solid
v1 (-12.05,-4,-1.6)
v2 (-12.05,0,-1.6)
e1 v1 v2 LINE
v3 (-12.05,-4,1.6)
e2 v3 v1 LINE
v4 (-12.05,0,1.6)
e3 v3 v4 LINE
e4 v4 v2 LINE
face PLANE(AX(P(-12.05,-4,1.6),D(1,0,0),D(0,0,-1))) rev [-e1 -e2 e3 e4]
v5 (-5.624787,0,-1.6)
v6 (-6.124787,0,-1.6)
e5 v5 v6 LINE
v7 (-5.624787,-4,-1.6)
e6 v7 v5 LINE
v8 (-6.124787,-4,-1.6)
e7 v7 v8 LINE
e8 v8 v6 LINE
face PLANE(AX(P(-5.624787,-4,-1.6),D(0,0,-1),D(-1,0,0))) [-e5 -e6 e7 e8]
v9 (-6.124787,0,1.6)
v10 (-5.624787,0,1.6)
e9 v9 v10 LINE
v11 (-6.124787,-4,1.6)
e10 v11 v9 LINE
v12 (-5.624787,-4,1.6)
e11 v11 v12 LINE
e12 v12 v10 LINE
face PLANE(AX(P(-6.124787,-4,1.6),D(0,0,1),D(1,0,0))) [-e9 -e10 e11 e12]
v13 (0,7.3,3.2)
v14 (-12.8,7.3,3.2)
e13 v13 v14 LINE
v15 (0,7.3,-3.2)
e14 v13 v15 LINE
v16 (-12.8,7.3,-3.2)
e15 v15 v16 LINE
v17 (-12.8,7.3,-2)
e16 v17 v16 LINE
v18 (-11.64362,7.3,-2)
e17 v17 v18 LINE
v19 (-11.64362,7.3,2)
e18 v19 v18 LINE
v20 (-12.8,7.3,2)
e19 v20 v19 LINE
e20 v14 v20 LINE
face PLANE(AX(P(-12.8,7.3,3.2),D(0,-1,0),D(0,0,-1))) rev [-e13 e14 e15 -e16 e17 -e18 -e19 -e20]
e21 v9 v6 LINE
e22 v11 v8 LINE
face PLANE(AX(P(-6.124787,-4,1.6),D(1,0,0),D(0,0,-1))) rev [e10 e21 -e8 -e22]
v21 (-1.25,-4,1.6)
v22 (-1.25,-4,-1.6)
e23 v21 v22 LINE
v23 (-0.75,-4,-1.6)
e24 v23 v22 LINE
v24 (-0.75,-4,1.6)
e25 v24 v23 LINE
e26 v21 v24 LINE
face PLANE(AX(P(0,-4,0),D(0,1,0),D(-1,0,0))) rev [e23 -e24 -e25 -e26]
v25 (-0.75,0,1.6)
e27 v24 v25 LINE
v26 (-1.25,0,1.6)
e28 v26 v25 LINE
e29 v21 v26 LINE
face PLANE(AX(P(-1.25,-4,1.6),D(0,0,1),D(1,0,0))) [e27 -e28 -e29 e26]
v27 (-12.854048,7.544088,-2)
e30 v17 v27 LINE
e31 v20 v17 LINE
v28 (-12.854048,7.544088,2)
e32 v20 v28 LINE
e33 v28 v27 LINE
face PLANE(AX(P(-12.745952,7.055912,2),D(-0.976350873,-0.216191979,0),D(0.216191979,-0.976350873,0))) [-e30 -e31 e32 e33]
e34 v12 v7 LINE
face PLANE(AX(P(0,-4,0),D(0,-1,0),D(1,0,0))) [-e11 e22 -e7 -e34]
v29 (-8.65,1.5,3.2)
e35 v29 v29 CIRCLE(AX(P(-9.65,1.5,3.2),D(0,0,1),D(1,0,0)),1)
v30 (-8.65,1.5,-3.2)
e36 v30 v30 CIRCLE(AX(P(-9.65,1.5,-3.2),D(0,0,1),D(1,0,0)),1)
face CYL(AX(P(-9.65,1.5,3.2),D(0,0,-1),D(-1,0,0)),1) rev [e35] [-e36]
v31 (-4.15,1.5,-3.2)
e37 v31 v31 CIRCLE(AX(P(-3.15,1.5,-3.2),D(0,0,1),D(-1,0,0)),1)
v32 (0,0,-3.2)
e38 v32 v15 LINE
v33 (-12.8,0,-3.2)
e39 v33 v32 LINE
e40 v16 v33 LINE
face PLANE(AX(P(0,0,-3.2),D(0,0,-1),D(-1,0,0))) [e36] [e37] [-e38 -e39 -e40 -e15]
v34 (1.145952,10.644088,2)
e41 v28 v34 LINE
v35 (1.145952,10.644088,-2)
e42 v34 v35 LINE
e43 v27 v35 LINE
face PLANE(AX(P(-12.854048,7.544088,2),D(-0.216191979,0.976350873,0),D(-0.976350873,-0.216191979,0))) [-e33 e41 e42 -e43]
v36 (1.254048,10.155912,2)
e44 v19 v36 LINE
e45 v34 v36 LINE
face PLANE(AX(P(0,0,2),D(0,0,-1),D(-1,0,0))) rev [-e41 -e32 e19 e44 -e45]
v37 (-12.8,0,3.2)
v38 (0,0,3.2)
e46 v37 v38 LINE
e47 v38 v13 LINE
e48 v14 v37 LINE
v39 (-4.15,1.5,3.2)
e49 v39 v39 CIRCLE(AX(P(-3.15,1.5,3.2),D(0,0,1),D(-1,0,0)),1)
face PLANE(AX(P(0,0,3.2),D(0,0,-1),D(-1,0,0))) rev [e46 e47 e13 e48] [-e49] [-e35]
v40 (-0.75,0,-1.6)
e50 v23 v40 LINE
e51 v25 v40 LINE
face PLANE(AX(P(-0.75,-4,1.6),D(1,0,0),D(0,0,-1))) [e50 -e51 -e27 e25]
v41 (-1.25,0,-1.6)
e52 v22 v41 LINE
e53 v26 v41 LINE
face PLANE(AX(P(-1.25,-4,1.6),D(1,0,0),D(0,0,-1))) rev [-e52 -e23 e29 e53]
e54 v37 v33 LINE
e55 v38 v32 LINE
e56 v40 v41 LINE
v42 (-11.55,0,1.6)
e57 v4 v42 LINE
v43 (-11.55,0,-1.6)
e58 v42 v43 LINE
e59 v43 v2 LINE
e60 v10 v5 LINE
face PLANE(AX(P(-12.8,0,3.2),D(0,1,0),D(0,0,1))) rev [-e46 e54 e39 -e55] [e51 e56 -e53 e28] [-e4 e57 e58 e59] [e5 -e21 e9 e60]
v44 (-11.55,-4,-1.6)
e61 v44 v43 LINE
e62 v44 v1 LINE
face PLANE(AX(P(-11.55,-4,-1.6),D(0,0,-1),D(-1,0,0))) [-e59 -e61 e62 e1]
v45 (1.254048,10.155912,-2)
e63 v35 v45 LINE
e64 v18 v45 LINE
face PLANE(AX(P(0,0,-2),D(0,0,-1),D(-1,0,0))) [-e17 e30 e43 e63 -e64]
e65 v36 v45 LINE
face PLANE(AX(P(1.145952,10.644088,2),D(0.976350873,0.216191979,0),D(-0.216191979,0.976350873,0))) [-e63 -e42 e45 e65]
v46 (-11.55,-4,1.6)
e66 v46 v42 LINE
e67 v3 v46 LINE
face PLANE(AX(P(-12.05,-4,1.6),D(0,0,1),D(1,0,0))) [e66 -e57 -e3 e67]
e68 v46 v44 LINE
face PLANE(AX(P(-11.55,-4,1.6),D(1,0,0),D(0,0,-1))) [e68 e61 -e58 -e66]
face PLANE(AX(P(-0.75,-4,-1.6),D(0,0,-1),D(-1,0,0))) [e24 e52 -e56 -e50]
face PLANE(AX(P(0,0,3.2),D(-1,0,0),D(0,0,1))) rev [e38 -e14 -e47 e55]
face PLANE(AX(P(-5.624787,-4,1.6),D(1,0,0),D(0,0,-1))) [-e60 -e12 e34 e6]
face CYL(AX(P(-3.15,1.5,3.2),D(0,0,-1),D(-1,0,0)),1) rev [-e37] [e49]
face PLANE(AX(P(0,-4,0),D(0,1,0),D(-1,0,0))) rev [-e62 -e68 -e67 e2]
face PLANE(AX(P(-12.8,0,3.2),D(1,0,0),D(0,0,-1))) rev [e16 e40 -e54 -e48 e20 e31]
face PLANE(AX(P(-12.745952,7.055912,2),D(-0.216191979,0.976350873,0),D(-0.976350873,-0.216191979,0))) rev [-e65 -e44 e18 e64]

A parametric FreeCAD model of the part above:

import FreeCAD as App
import Part
import Sketcher
from FreeCAD import Vector
Q = App.Units.Quantity

doc = App.newDocument("Part")
body = doc.addObject("PartDesign::Body", "Body")

# Sketch on XY plane
sketch1 = body.newObject("Sketcher::SketchObject", "Sketch")
sketch1.AttachmentSupport = (doc.getObject("XY_Plane"), [""])
sketch1.MapMode = "FlatFace"
sketch1.addGeometry(Part.LineSegment(Vector(-12.8, 7.3, 0), Vector(-12.8, 0, 0)), False)
sketch1.addGeometry(Part.LineSegment(Vector(-12.8, 0, 0), Vector(0, 0, 0)), False)
sketch1.addGeometry(Part.LineSegment(Vector(0, 0, 0), Vector(0, 7.3, 0)), False)
sketch1.addGeometry(Part.LineSegment(Vector(0, 7.3, 0), Vector(-12.8, 7.3, 0)), False)
sketch1.addGeometry(Part.Circle(Vector(-9.7, 1.5, 0), Vector(0, 0, 1), 1), False)
sketch1.addGeometry(Part.Circle(Vector(-3.1, 1.5, 0), Vector(0, 0, 1), 1), False)
sketch1.addConstraint(Sketcher.Constraint("Coincident", 0, 2, 1, 1))
sketch1.addConstraint(Sketcher.Constraint("Coincident", 1, 2, 2, 1))
sketch1.addConstraint(Sketcher.Constraint("Coincident", 2, 2, 3, 1))
sketch1.addConstraint(Sketcher.Constraint("Coincident", 3, 2, 0, 1))
sketch1.addConstraint(Sketcher.Constraint("Vertical", 0))
sketch1.addConstraint(Sketcher.Constraint("Horizontal", 1))
sketch1.addConstraint(Sketcher.Constraint("Vertical", 2))
sketch1.addConstraint(Sketcher.Constraint("Horizontal", 3))
sketch1.addConstraint(Sketcher.Constraint("Coincident", 1, 2, -1, 1))
sketch1.addConstraint(Sketcher.Constraint("Equal", 4, 5))
sketch1.addConstraint(Sketcher.Constraint("Horizontal", 4, 3, 5, 3))
sketch1.addConstraint(Sketcher.Constraint("Diameter", 4, Q("2 mm")))
sketch1.addConstraint(Sketcher.Constraint("DistanceX", 1, 1, 1, 2, Q("12.8 mm")))
sketch1.addConstraint(Sketcher.Constraint("DistanceY", 0, 2, 0, 1, Q("7.3 mm")))
sketch1.addConstraint(Sketcher.Constraint("DistanceY", -1, 1, 4, 3, Q("1.5 mm")))
sketch1.addConstraint(Sketcher.Constraint("DistanceX", 4, 3, 5, 3, Q("6.5 mm")))
sketch1.addConstraint(Sketcher.Constraint("DistanceX", 4, 3, -1, 1, Q("9.65 mm")))
pad1 = body.newObject("PartDesign::Pad", "Pad")
pad1.Profile = sketch1
pad1.Length = 6.4
pad1.Midplane = True

# Sketch on XZ plane
sketch2 = body.newObject("Sketcher::SketchObject", "Sketch001")
sketch2.AttachmentSupport = (doc.getObject("XZ_Plane"), [""])
sketch2.MapMode = "FlatFace"
sketch2.addGeometry(Part.LineSegment(Vector(-12.1, 1.6, 0), Vector(-12.1, -1.6, 0)), False)
sketch2.addGeometry(Part.LineSegment(Vector(-12.1, -1.6, 0), Vector(-11.6, -1.6, 0)), False)
sketch2.addGeometry(Part.LineSegment(Vector(-11.6, -1.6, 0), Vector(-11.6, 1.6, 0)), False)
sketch2.addGeometry(Part.LineSegment(Vector(-11.6, 1.6, 0), Vector(-12.1, 1.6, 0)), False)
sketch2.addGeometry(Part.LineSegment(Vector(-6.1, 1.6, 0), Vector(-6.1, -1.6, 0)), False)
sketch2.addGeometry(Part.LineSegment(Vector(-6.1, -1.6, 0), Vector(-5.6, -1.6, 0)), False)
sketch2.addGeometry(Part.LineSegment(Vector(-5.6, -1.6, 0), Vector(-5.6, 1.6, 0)), False)
sketch2.addGeometry(Part.LineSegment(Vector(-5.6, 1.6, 0), Vector(-6.1, 1.6, 0)), False)
sketch2.addGeometry(Part.LineSegment(Vector(-1.2, 1.6, 0), Vector(-1.2, -1.6, 0)), False)
sketch2.addGeometry(Part.LineSegment(Vector(-1.2, -1.6, 0), Vector(-0.8, -1.6, 0)), False)
sketch2.addGeometry(Part.LineSegment(Vector(-0.8, -1.6, 0), Vector(-0.8, 1.6, 0)), False)
sketch2.addGeometry(Part.LineSegment(Vector(-0.8, 1.6, 0), Vector(-1.2, 1.6, 0)), False)
sketch2.addConstraint(Sketcher.Constraint("Coincident", 0, 2, 1, 1))
sketch2.addConstraint(Sketcher.Constraint("Coincident", 1, 2, 2, 1))
sketch2.addConstraint(Sketcher.Constraint("Coincident", 2, 2, 3, 1))
sketch2.addConstraint(Sketcher.Constraint("Coincident", 3, 2, 0, 1))
sketch2.addConstraint(Sketcher.Constraint("Coincident", 4, 2, 5, 1))
sketch2.addConstraint(Sketcher.Constraint("Coincident", 5, 2, 6, 1))
sketch2.addConstraint(Sketcher.Constraint("Coincident", 6, 2, 7, 1))
sketch2.addConstraint(Sketcher.Constraint("Coincident", 7, 2, 4, 1))
sketch2.addConstraint(Sketcher.Constraint("Coincident", 8, 2, 9, 1))
sketch2.addConstraint(Sketcher.Constraint("Coincident", 9, 2, 10, 1))
sketch2.addConstraint(Sketcher.Constraint("Coincident", 10, 2, 11, 1))
sketch2.addConstraint(Sketcher.Constraint("Coincident", 11, 2, 8, 1))
sketch2.addConstraint(Sketcher.Constraint("Vertical", 0))
sketch2.addConstraint(Sketcher.Constraint("Horizontal", 1))
sketch2.addConstraint(Sketcher.Constraint("Vertical", 2))
sketch2.addConstraint(Sketcher.Constraint("Horizontal", 3))
sketch2.addConstraint(Sketcher.Constraint("Vertical", 4))
sketch2.addConstraint(Sketcher.Constraint("Horizontal", 5))
sketch2.addConstraint(Sketcher.Constraint("Vertical", 6))
sketch2.addConstraint(Sketcher.Constraint("Horizontal", 7))
sketch2.addConstraint(Sketcher.Constraint("Vertical", 8))
sketch2.addConstraint(Sketcher.Constraint("Horizontal", 9))
sketch2.addConstraint(Sketcher.Constraint("Vertical", 10))
sketch2.addConstraint(Sketcher.Constraint("Horizontal", 11))
sketch2.addConstraint(Sketcher.Constraint("Horizontal", 1, 2, 4, 2))
sketch2.addConstraint(Sketcher.Constraint("Horizontal", 3, 2, 6, 2))
sketch2.addConstraint(Sketcher.Constraint("Horizontal", 5, 2, 8, 2))
sketch2.addConstraint(Sketcher.Constraint("Horizontal", 7, 2, 10, 2))
sketch2.addConstraint(Sketcher.Constraint("Equal", 3, 5))
sketch2.addConstraint(Sketcher.Constraint("Equal", 7, 9))
sketch2.addConstraint(Sketcher.Constraint("DistanceX", 1, 1, 1, 2, Q("0.5 mm")))
sketch2.addConstraint(Sketcher.Constraint("DistanceY", 0, 2, 0, 1, Q("3.2 mm")))
sketch2.addConstraint(Sketcher.Constraint("DistanceY", 0, 2, -1, 1, Q("1.6 mm")))
sketch2.addConstraint(Sketcher.Constraint("DistanceX", 1, 2, 8, 2, Q("10.3 mm")))
sketch2.addConstraint(Sketcher.Constraint("DistanceX", 0, 2, -1, 1, Q("12.05 mm")))
sketch2.addConstraint(Sketcher.Constraint("DistanceX", 4, 2, -1, 1, Q("6.124787 mm")))
pad2 = body.newObject("PartDesign::Pad", "Pad001")
pad2.Profile = sketch2
pad2.Length = 4

# Sketch on XY plane
sketch3 = body.newObject("Sketcher::SketchObject", "Sketch002")
sketch3.AttachmentSupport = (doc.getObject("XY_Plane"), [""])
sketch3.MapMode = "FlatFace"
sketch3.addGeometry(Part.LineSegment(Vector(-12.75, 7.06, 0), Vector(1.25, 10.16, 0)), False)
sketch3.addGeometry(Part.LineSegment(Vector(1.25, 10.16, 0), Vector(1.15, 10.64, 0)), False)
sketch3.addGeometry(Part.LineSegment(Vector(1.15, 10.64, 0), Vector(-12.85, 7.54, 0)), False)
sketch3.addGeometry(Part.LineSegment(Vector(-12.85, 7.54, 0), Vector(-12.75, 7.06, 0)), False)
sketch3.addConstraint(Sketcher.Constraint("Coincident", 0, 2, 1, 1))
sketch3.addConstraint(Sketcher.Constraint("Coincident", 1, 2, 2, 1))
sketch3.addConstraint(Sketcher.Constraint("Coincident", 2, 2, 3, 1))
sketch3.addConstraint(Sketcher.Constraint("Coincident", 3, 2, 0, 1))
sketch3.addConstraint(Sketcher.Constraint("Perpendicular", 0, 1))
sketch3.addConstraint(Sketcher.Constraint("Perpendicular", 1, 2))
sketch3.addConstraint(Sketcher.Constraint("Perpendicular", 2, 3))
sketch3.addConstraint(Sketcher.Constraint("DistanceX", 2, 2, 1, 2, Q("14 mm")))
sketch3.addConstraint(Sketcher.Constraint("Distance", 1, Q("0.5 mm")))
sketch3.addConstraint(Sketcher.Constraint("DistanceY", 2, 2, 1, 2, Q("3.1 mm")))
sketch3.addConstraint(Sketcher.Constraint("DistanceX", -1, 1, 0, 2, Q("1.254048 mm")))
sketch3.addConstraint(Sketcher.Constraint("DistanceY", -1, 1, 0, 2, Q("10.155912 mm")))
pad3 = body.newObject("PartDesign::Pad", "Pad002")
pad3.Profile = sketch3
pad3.Length = 4
pad3.Midplane = True

doc.recompute()
